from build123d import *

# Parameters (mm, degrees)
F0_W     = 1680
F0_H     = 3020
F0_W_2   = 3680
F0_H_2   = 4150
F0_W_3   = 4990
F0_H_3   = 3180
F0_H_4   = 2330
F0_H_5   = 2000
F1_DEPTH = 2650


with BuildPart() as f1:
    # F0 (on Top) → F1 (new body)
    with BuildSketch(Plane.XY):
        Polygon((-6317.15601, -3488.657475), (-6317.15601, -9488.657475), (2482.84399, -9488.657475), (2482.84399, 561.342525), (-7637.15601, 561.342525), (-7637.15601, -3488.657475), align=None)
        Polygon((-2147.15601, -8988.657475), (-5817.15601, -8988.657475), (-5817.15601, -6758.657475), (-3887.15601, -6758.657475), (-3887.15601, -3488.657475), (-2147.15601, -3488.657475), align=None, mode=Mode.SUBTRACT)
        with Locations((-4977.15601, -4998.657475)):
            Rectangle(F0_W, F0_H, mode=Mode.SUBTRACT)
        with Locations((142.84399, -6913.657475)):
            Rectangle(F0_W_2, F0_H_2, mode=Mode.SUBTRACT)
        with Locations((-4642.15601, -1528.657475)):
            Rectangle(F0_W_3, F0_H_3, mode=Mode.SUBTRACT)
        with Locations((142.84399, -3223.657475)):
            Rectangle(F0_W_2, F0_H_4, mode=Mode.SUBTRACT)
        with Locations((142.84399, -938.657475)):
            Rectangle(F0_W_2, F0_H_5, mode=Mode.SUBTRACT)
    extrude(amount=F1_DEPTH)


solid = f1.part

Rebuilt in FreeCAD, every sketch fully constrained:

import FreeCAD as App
import Part
import Sketcher

V = App.Vector


def add_polygon(sketch, points):
    """Adds a closed chain of lines whose ends are joined by coincident constraints."""
    first, n = sketch.GeometryCount, len(points)
    for a, b in zip(points, points[1:] + points[:1]):
        sketch.addGeometry(Part.LineSegment(App.Vector(*a, 0), App.Vector(*b, 0)), False)
    for i in range(n):
        sketch.addConstraint(Sketcher.Constraint("Coincident", first + i, 2, first + (i + 1) % n, 1))

doc = App.newDocument("Part")
body = doc.addObject("PartDesign::Body", "Body")

# Sketch on XY plane
sketch1 = body.newObject("Sketcher::SketchObject", "Sketch")
sketch1.AttachmentSupport = (doc.getObject("XY_Plane"), [""])
sketch1.MapMode = "FlatFace"
add_polygon(sketch1, [(-6317, -3489), (-6317, -9489), (2483, -9489), (2483, 561), (-7637, 561), (-7637, -3489)])  # lines 0-5
add_polygon(sketch1, [(-4137, -6509), (-5817, -6509), (-5817, -3489), (-4137, -3489)])  # lines 6-9
add_polygon(sketch1, [(-2147, -3489), (-2147, -8989), (-5817, -8989), (-5817, -6759), (-3887, -6759), (-3887, -3489)])  # lines 10-15
add_polygon(sketch1, [(1983, -8989), (-1697, -8989), (-1697, -4839), (1983, -4839)])  # lines 16-19
add_polygon(sketch1, [(-2147, -3119), (-7137, -3119), (-7137, 61), (-2147, 61)])  # lines 20-23
add_polygon(sketch1, [(1983, -4389), (-1697, -4389), (-1697, -2059), (1983, -2059)])  # lines 24-27
add_polygon(sketch1, [(1983, -1939), (-1697, -1939), (-1697, 61), (1983, 61)])  # lines 28-31
sketch1.addConstraint([
    Sketcher.Constraint("Vertical", 0),
    Sketcher.Constraint("Horizontal", 1),
    Sketcher.Constraint("Vertical", 2),
    Sketcher.Constraint("Horizontal", 3),
    Sketcher.Constraint("Vertical", 4),
    Sketcher.Constraint("Horizontal", 5),
    Sketcher.Constraint("Horizontal", 6),
    Sketcher.Constraint("Vertical", 7),
    Sketcher.Constraint("Horizontal", 8),
    Sketcher.Constraint("Vertical", 9),
    Sketcher.Constraint("Vertical", 10),
    Sketcher.Constraint("Horizontal", 11),
    Sketcher.Constraint("Vertical", 12),
    Sketcher.Constraint("Horizontal", 13),
    Sketcher.Constraint("Vertical", 14),
    Sketcher.Constraint("Horizontal", 15),
    Sketcher.Constraint("Horizontal", 16),
    Sketcher.Constraint("Vertical", 17),
    Sketcher.Constraint("Horizontal", 18),
    Sketcher.Constraint("Vertical", 19),
    Sketcher.Constraint("Horizontal", 20),
    Sketcher.Constraint("Vertical", 21),
    Sketcher.Constraint("Horizontal", 22),
    Sketcher.Constraint("Vertical", 23),
    Sketcher.Constraint("Horizontal", 24),
    Sketcher.Constraint("Vertical", 25),
    Sketcher.Constraint("Horizontal", 26),
    Sketcher.Constraint("Vertical", 27),
    Sketcher.Constraint("Horizontal", 28),
    Sketcher.Constraint("Vertical", 29),
    Sketcher.Constraint("Horizontal", 30),
    Sketcher.Constraint("Vertical", 31),
    Sketcher.Constraint("Horizontal", 5, 2, 7, 2),
    Sketcher.Constraint("Horizontal", 8, 2, 14, 2),
    Sketcher.Constraint("Horizontal", 11, 2, 16, 2),
    Sketcher.Constraint("Horizontal", 22, 2, 29, 2),
    Sketcher.Constraint("Vertical", 7, 2, 11, 2),
    Sketcher.Constraint("Vertical", 15, 2, 22, 2),
    Sketcher.Constraint("Vertical", 17, 2, 24, 2),
    Sketcher.Constraint("Vertical", 19, 2, 26, 2),
    Sketcher.Constraint("Vertical", 25, 2, 28, 2),
    Sketcher.Constraint("Vertical", 27, 2, 30, 2),
    Sketcher.Constraint("DistanceX", 1, 1, 1, 2, 8800.0),
    Sketcher.Constraint("DistanceX", 3, 2, 3, 1, 10120.0),
    Sketcher.Constraint("DistanceX", 6, 2, 6, 1, 1680.0),
    Sketcher.Constraint("DistanceX", 11, 2, 11, 1, 3670.0),
    Sketcher.Constraint("DistanceX", 13, 1, 13, 2, 1930.0),
    Sketcher.Constraint("DistanceX", 16, 2, 16, 1, 3680.0),
    Sketcher.Constraint("DistanceX", 20, 2, 20, 1, 4990.0),
    Sketcher.Constraint("DistanceY", 0, 2, 0, 1, 6000.0),
    Sketcher.Constraint("DistanceY", 2, 1, 2, 2, 10050.0),
    Sketcher.Constraint("DistanceY", 7, 1, 7, 2, 3020.0),
    Sketcher.Constraint("DistanceY", 10, 2, 10, 1, 5500.0),
    Sketcher.Constraint("DistanceY", 12, 1, 12, 2, 2230.0),
    Sketcher.Constraint("DistanceY", 17, 1, 17, 2, 4150.0),
    Sketcher.Constraint("DistanceY", 21, 1, 21, 2, 3180.0),
    Sketcher.Constraint("DistanceY", 25, 1, 25, 2, 2330.0),
    Sketcher.Constraint("DistanceY", 29, 1, 29, 2, 2000.0),
    Sketcher.Constraint("DistanceX", 0, 2, 6, 2, 500.0),
    Sketcher.Constraint("DistanceX", 10, 2, 16, 2, 450.0),
    Sketcher.Constraint("DistanceY", 4, 2, 20, 2, 370.0),
    Sketcher.Constraint("DistanceY", 17, 2, 24, 2, 450.0),
    Sketcher.Constraint("DistanceX", 0, 2, -1, 1, 6317.15601),
    Sketcher.Constraint("DistanceY", 0, 2, -1, 1, 9488.657475),
])
pad1 = body.newObject("PartDesign::Pad", "Pad")
pad1.Profile = sketch1
pad1.Length = 2650

doc.recompute()
